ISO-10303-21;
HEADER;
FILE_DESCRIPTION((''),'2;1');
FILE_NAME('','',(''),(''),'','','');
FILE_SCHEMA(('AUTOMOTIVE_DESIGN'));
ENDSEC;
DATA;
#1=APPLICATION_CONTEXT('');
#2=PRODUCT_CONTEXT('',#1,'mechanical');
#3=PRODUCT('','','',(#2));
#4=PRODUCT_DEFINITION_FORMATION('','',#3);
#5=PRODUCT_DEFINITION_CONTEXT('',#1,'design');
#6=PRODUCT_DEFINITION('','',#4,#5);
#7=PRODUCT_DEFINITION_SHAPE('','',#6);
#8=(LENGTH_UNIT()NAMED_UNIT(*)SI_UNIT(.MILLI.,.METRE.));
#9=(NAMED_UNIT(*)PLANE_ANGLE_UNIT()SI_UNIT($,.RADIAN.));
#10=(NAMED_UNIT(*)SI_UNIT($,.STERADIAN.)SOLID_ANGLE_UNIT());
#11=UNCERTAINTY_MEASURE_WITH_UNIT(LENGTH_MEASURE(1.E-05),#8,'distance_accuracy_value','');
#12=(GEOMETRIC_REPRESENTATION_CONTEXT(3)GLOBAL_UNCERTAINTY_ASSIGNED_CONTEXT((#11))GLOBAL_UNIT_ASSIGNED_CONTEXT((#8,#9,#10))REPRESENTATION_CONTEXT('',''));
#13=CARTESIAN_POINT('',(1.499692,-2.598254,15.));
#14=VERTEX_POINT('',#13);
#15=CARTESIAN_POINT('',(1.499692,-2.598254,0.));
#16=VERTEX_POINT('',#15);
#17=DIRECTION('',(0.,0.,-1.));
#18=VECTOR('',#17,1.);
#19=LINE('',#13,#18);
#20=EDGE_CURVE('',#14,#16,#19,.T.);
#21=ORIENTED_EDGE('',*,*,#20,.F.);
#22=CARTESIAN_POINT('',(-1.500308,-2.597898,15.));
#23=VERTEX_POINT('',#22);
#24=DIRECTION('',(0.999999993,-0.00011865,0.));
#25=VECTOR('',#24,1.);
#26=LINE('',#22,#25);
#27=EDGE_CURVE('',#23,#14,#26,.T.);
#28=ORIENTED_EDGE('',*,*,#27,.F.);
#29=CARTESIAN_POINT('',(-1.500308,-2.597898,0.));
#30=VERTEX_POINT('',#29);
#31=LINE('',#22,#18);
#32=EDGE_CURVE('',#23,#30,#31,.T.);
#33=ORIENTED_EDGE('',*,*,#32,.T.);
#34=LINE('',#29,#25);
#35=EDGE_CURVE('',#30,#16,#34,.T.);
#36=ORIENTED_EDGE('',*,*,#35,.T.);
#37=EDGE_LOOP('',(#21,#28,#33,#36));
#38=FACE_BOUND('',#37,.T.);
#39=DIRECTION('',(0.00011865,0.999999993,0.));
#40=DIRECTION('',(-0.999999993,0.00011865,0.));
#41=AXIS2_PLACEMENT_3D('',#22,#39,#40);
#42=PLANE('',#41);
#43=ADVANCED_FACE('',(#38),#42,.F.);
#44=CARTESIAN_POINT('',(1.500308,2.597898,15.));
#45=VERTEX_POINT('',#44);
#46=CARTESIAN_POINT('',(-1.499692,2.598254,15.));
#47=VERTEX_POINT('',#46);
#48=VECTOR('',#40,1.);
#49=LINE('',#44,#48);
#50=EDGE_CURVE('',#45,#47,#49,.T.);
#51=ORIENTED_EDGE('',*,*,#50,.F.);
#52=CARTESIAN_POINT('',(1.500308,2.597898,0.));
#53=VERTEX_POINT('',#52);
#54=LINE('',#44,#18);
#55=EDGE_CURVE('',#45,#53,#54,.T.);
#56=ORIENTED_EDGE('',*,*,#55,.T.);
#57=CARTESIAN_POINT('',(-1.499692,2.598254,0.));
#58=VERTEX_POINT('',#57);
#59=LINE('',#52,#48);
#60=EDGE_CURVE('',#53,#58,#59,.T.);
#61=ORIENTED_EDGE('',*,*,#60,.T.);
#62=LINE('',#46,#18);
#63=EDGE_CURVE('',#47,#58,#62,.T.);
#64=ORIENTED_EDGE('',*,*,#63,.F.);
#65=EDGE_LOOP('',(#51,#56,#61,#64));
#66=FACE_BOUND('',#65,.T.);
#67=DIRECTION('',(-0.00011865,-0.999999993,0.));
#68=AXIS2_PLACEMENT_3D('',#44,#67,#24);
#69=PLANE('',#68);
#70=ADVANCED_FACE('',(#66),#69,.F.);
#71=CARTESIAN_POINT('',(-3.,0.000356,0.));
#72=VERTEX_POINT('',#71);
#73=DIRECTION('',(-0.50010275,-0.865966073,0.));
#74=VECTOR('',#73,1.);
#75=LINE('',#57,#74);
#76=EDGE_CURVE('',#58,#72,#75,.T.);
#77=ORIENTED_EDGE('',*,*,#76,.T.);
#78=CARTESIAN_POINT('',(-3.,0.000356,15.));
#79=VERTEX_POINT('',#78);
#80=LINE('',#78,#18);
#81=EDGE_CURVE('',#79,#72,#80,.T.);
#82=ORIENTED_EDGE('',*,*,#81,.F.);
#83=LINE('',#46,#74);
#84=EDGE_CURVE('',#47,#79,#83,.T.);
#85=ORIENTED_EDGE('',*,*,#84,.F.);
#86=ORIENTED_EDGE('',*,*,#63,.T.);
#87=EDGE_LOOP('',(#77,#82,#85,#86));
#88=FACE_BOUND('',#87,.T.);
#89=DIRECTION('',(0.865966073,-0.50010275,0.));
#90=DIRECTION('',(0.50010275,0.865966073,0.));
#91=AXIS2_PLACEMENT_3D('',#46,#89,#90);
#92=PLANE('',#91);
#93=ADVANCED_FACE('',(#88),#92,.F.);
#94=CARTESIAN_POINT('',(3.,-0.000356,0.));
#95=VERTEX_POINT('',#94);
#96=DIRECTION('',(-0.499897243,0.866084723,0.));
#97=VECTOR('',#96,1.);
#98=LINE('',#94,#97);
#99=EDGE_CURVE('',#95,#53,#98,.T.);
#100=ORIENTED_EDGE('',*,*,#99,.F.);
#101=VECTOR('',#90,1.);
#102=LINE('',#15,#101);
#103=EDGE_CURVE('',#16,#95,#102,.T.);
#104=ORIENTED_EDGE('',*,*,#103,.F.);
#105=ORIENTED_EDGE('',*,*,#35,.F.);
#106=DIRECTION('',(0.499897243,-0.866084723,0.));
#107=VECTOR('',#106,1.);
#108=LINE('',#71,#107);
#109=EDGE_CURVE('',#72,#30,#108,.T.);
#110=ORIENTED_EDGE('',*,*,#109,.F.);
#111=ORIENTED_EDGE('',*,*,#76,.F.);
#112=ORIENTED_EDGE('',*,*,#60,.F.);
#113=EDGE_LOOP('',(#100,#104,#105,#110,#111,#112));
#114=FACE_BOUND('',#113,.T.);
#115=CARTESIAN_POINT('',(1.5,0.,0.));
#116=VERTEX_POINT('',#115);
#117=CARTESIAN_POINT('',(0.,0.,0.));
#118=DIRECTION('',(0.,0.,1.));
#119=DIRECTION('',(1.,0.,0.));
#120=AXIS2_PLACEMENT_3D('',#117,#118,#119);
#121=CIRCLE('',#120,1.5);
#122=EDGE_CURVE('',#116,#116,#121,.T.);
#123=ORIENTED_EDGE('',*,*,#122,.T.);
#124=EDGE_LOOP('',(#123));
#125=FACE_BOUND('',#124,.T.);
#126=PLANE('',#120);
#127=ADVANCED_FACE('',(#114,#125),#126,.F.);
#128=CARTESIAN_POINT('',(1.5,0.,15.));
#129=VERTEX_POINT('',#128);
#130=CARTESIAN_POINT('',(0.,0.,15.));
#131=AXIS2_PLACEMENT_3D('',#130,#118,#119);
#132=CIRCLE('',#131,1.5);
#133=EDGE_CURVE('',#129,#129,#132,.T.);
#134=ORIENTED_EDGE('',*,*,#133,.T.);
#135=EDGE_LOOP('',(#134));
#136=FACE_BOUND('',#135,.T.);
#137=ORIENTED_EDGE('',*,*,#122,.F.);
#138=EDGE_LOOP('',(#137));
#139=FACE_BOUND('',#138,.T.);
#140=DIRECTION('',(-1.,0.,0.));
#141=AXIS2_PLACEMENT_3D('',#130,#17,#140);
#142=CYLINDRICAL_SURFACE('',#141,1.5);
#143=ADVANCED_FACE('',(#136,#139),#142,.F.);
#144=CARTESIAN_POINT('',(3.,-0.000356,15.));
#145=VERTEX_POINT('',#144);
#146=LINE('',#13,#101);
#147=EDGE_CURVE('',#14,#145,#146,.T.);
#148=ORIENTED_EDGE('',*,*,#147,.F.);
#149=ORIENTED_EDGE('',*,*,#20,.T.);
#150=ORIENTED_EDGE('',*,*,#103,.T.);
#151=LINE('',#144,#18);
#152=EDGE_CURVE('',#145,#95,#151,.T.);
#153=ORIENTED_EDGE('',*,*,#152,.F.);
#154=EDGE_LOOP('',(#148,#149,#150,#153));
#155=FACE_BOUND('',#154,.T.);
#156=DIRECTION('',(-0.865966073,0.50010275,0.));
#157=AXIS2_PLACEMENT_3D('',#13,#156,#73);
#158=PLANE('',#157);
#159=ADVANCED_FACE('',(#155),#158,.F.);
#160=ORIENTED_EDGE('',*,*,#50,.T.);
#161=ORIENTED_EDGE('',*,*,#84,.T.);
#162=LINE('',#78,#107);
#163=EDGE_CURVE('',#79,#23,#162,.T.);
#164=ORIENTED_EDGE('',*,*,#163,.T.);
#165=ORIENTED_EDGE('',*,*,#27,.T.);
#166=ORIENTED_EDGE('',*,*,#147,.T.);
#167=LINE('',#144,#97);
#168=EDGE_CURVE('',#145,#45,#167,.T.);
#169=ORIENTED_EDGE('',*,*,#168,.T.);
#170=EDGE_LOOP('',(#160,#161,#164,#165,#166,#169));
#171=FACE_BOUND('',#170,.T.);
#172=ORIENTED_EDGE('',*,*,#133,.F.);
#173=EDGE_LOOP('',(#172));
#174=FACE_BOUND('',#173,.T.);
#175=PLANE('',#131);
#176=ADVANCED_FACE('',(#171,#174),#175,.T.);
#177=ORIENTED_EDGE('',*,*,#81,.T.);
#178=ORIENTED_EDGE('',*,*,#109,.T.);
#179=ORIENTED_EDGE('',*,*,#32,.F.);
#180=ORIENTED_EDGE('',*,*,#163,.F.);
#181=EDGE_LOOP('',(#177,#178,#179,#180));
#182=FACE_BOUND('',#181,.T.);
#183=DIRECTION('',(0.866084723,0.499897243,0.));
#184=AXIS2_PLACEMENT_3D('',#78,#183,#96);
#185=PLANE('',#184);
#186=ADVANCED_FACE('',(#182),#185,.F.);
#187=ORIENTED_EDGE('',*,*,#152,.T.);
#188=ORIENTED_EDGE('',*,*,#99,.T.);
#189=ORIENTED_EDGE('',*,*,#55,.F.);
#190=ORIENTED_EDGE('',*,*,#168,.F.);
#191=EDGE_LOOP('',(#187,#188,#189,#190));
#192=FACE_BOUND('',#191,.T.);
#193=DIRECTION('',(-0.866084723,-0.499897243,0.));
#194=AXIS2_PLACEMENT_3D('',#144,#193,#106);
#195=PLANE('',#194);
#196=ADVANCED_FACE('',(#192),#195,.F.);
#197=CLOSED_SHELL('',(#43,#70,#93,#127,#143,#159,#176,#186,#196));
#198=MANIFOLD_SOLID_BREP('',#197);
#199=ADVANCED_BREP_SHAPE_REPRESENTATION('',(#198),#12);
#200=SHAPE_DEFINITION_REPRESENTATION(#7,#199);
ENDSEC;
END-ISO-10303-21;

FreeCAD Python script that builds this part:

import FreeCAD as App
import Part
import Sketcher
from FreeCAD import Vector
Q = App.Units.Quantity

doc = App.newDocument("Part")
body = doc.addObject("PartDesign::Body", "Body")

sketch1 = body.newObject("Sketcher::SketchObject", "Sketch")
sketch1.AttachmentSupport = (doc.getObject("XY_Plane"), [""])
sketch1.MapMode = "FlatFace"
sketch1.addGeometry([
    Part.LineSegment(Vector(1.5, 2.6, 0), Vector(-1.5, 2.6, 0)),
    Part.LineSegment(Vector(-1.5, 2.6, 0), Vector(-3, 0, 0)),
    Part.LineSegment(Vector(-3, 0, 0), Vector(-1.5, -2.6, 0)),
    Part.LineSegment(Vector(-1.5, -2.6, 0), Vector(1.5, -2.6, 0)),
    Part.LineSegment(Vector(1.5, -2.6, 0), Vector(3, 0, 0)),
    Part.LineSegment(Vector(3, 0, 0), Vector(1.5, 2.6, 0)),
    Part.Circle(Vector(0, 0, 0), Vector(0, 0, 1), 1.5),
], False)
sketch1.addConstraint([
    Sketcher.Constraint("Coincident", 0, 2, 1, 1),
    Sketcher.Constraint("Coincident", 1, 2, 2, 1),
    Sketcher.Constraint("Coincident", 2, 2, 3, 1),
    Sketcher.Constraint("Coincident", 3, 2, 4, 1),
    Sketcher.Constraint("Coincident", 4, 2, 5, 1),
    Sketcher.Constraint("Coincident", 5, 2, 0, 1),
    Sketcher.Constraint("Coincident", 6, 3, -1, 1),
    Sketcher.Constraint("Symmetric", 0, 2, 3, 2, -1, 1),
    Sketcher.Constraint("Symmetric", 1, 2, 4, 2, -1, 1),
    Sketcher.Constraint("Symmetric", 2, 2, 5, 2, -1, 1),
    Sketcher.Constraint("Equal", 0, 1),
    Sketcher.Constraint("Equal", 1, 2),
    Sketcher.Constraint("Diameter", 6, Q("3 mm")),
    Sketcher.Constraint("Distance", 0, Q("3 mm")),
    Sketcher.Constraint("DistanceX", 1, 2, -1, 1, Q("3 mm")),
    Sketcher.Constraint("DistanceY", 2, 2, -1, 1, Q("2.597898 mm")),
    Sketcher.Constraint("DistanceY", 1, 2, 0, 2, Q("2.597898 mm")),
])
pad1 = body.newObject("PartDesign::Pad", "Pad")
pad1.Profile = sketch1
pad1.Length = 15

doc.recompute()
